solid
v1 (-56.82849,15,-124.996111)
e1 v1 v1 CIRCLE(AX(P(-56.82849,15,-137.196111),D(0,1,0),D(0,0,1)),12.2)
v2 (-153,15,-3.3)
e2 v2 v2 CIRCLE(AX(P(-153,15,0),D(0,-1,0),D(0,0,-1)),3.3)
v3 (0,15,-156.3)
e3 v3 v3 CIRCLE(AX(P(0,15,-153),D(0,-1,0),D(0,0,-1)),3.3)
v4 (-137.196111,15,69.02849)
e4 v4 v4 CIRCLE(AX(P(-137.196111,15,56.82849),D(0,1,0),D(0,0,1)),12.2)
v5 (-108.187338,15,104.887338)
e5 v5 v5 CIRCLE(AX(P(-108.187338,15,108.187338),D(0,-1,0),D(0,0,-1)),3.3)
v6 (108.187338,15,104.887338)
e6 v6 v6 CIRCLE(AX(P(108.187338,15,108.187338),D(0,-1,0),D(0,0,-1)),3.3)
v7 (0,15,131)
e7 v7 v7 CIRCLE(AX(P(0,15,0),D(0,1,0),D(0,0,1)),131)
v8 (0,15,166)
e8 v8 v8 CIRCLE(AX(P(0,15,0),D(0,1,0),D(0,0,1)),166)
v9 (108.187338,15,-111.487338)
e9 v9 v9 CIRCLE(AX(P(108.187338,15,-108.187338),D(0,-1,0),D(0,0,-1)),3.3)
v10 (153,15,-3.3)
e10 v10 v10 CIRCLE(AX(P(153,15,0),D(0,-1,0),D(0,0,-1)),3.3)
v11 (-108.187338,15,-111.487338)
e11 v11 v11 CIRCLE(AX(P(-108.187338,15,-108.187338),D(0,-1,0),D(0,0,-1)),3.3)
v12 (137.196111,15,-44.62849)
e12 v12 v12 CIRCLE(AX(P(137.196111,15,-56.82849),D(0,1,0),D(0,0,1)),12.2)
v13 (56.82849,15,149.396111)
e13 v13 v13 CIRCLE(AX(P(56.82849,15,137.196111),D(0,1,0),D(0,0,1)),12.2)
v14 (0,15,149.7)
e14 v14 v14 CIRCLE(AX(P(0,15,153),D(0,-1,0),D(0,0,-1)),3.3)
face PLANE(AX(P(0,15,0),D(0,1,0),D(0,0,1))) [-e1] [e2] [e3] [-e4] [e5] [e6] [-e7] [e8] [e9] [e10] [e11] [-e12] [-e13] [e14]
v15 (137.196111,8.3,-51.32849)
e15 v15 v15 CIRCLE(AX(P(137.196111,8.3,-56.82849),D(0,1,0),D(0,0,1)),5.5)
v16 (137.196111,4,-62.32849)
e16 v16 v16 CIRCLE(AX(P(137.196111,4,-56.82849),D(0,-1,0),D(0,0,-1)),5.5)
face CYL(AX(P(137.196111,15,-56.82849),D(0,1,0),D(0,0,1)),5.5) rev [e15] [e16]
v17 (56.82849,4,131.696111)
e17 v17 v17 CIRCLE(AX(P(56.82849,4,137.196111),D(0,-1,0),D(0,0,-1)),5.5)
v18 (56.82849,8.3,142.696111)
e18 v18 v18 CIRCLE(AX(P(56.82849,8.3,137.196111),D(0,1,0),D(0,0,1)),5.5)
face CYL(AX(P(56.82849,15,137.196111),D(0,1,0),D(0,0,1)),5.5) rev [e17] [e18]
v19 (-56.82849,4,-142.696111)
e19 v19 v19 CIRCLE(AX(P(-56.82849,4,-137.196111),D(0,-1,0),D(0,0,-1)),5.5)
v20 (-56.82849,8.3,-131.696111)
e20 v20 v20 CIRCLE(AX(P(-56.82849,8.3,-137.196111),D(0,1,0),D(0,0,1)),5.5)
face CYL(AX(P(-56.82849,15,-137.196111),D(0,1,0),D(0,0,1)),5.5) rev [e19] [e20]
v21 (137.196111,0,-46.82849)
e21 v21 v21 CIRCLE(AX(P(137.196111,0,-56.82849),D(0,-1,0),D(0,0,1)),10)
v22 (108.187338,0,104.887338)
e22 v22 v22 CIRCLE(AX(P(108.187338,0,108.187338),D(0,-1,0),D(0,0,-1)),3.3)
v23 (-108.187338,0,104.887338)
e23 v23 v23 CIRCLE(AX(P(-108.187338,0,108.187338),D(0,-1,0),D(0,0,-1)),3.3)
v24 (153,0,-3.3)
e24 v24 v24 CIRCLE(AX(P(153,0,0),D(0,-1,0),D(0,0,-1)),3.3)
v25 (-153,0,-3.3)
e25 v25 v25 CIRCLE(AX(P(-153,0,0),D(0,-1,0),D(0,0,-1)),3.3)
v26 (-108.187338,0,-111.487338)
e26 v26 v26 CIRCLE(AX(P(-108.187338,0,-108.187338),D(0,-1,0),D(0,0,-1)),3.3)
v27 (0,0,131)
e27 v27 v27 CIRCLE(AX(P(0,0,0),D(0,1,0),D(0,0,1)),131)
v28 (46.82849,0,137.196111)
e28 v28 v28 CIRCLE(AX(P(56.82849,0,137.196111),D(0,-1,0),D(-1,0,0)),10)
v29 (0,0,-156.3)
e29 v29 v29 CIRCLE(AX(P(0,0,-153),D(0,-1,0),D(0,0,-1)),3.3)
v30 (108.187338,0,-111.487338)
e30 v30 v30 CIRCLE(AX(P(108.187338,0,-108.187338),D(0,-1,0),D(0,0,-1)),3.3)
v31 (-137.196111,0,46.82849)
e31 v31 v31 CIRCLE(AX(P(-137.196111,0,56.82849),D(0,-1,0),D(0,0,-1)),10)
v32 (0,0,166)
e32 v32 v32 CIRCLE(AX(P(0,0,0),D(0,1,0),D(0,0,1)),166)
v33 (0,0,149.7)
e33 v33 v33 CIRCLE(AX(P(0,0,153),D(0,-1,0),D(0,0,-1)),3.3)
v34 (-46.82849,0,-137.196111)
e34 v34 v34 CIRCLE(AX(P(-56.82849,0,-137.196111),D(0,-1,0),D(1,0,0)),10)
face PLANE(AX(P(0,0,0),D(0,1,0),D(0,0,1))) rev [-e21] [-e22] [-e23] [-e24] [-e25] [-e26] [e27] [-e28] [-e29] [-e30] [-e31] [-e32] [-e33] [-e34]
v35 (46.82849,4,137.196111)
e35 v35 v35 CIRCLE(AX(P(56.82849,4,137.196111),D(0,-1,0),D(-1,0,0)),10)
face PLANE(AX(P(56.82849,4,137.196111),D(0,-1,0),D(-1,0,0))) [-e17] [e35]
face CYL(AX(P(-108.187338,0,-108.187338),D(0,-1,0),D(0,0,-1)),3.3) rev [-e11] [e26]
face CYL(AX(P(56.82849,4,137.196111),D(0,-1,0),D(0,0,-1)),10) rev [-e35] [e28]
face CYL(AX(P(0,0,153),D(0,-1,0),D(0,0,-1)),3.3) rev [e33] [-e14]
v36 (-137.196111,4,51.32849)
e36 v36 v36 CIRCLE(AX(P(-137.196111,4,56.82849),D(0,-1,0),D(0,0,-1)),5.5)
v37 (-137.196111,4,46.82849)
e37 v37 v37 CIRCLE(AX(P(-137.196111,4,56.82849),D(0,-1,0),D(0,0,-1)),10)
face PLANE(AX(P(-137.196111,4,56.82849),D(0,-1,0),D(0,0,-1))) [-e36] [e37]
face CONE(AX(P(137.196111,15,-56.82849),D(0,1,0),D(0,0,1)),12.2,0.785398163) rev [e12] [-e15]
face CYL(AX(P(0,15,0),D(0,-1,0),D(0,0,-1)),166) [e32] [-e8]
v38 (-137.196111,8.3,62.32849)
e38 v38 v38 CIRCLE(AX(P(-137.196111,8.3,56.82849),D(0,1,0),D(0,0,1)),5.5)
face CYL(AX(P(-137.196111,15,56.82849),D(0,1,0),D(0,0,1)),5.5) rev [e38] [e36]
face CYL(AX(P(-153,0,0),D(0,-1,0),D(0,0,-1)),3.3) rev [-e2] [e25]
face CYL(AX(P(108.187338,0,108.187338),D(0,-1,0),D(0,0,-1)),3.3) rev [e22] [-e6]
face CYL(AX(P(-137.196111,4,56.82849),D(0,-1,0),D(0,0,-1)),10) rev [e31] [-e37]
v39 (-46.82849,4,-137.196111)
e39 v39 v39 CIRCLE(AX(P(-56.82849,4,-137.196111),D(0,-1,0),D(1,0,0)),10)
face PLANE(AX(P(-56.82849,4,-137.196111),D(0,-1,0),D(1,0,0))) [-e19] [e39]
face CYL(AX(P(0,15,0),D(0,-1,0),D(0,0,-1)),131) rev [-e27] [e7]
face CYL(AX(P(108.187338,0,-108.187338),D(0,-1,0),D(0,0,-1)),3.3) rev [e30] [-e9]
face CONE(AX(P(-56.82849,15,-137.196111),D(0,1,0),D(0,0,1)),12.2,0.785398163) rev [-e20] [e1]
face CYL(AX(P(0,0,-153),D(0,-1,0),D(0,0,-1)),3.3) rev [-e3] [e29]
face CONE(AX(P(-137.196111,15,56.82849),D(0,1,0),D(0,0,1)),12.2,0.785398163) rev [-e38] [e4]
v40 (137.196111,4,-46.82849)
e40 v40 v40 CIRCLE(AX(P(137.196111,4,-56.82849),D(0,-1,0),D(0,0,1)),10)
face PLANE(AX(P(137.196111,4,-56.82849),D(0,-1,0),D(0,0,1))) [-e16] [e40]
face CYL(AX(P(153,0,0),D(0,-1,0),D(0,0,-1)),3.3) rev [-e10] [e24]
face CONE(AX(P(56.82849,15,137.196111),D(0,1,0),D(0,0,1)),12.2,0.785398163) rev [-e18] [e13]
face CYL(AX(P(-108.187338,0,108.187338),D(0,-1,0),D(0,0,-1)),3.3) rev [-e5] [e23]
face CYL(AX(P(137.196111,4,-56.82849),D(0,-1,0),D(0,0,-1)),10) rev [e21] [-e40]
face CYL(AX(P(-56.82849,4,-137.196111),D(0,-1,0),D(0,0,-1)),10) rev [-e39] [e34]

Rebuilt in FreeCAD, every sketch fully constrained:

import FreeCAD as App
import Part
import Sketcher

doc = App.newDocument("Part")
params = doc.addObject("Spreadsheet::Sheet", "Params")
for row, (alias, value) in enumerate([
    ("sketch1_diameter", "332 mm"),
    ("sketch1_diameter2", "262 mm"),
    ("pad1_length", "15 mm"),
    ("sketch2_diameter", "6.6 mm"),
    ("hole_diameter", "6.6 mm"),
    ("sketch3_diameter", "20 mm"),
    ("pocket1_length", "4 mm"),
    ("sketch4_diameter", "11 mm"),
    ("hole2_diameter", "11 mm"),
    ("hole2_csink_diameter", "24.4 mm"),
], start=1):
    params.set(f"A{row}", alias)
    params.set(f"B{row}", "=" + value)
    params.setAlias(f"B{row}", alias)

body = doc.addObject("PartDesign::Body", "Body")

sketch1 = body.newObject("Sketcher::SketchObject", "Sketch")
sketch1.AttachmentSupport = (doc.getObject("XZ_Plane"), [""])
sketch1.MapMode = "FlatFace"
sketch1.addGeometry(Part.Circle(App.Vector(0, 0, 0), App.Vector(0, 0, 1), 166), False)
sketch1.addGeometry(Part.Circle(App.Vector(0, 0, 0), App.Vector(0, 0, 1), 131), False)
sketch1.addConstraint(Sketcher.Constraint("Coincident", 0, 3, -1, 1))
sketch1.addConstraint(Sketcher.Constraint("Coincident", 1, 3, -1, 1))
sketch1.addConstraint(Sketcher.Constraint("Diameter", 0, 332.0))
sketch1.addConstraint(Sketcher.Constraint("Diameter", 1, 262.0))
sketch1.setExpression("Constraints[2]", "Params.sketch1_diameter")
sketch1.setExpression("Constraints[3]", "Params.sketch1_diameter2")
pad1 = body.newObject("PartDesign::Pad", "Pad")
pad1.Profile = sketch1
pad1.setExpression("Length", "Params.pad1_length")
pad1.Reversed = True

sketch2 = body.newObject("Sketcher::SketchObject", "Sketch001")
sketch2.AttachmentSupport = (doc.getObject("XZ_Plane"), [""])
sketch2.MapMode = "FlatFace"
sketch2.addGeometry(Part.Circle(App.Vector(0, -153, 0), App.Vector(0, 0, 1), 3.3), False)
sketch2.addConstraint(Sketcher.Constraint("PointOnObject", 0, 3, -2))
sketch2.addConstraint(Sketcher.Constraint("Diameter", 0, 6.6))
sketch2.addConstraint(Sketcher.Constraint("DistanceY", 0, 3, -1, 1, 153.0))
sketch2.setExpression("Constraints[1]", "Params.sketch2_diameter")
doc.recompute()
hole = body.newObject("PartDesign::Hole", "Hole")
hole.Profile = sketch2
hole.ThreadType = "None"
hole.setExpression("Diameter", "Params.hole_diameter")
hole.DepthType = "ThroughAll"
doc.recompute()

polarpattern = body.newObject("PartDesign::PolarPattern", "PolarPattern")
polarpattern.Originals = [hole]
polarpattern.Axis = (doc.getObject("Y_Axis"), [""])
polarpattern.Angle = 360
polarpattern.Occurrences = 8
body.Tip = polarpattern

sketch3 = body.newObject("Sketcher::SketchObject", "Sketch002")
sketch3.AttachmentSupport = (doc.getObject("XZ_Plane"), [""])
sketch3.MapMode = "FlatFace"
sketch3.addGeometry(Part.Circle(App.Vector(-137, 57, 0), App.Vector(0, 0, 1), 10), False)
sketch3.addConstraint(Sketcher.Constraint("Diameter", 0, 20.0))
sketch3.addConstraint(Sketcher.Constraint("DistanceX", 0, 3, -1, 1, 137.196111))
sketch3.addConstraint(Sketcher.Constraint("DistanceY", -1, 1, 0, 3, 56.82849))
sketch3.setExpression("Constraints[0]", "Params.sketch3_diameter")
pocket1 = body.newObject("PartDesign::Pocket", "Pocket")
pocket1.Profile = sketch3
pocket1.setExpression("Length", "Params.pocket1_length")

sketch4 = body.newObject("Sketcher::SketchObject", "Sketch003")
sketch4.AttachmentSupport = (doc.getObject("XZ_Plane"), [""])
sketch4.MapMode = "FlatFace"
sketch4.AttachmentOffset = App.Placement(App.Vector(0, 0, -15), App.Rotation())
sketch4.addGeometry(Part.Circle(App.Vector(-137, 57, 0), App.Vector(0, 0, 1), 6), False)
sketch4.addConstraint(Sketcher.Constraint("Diameter", 0, 11.0))
sketch4.addConstraint(Sketcher.Constraint("DistanceX", 0, 3, -1, 1, 137.196111))
sketch4.addConstraint(Sketcher.Constraint("DistanceY", -1, 1, 0, 3, 56.82849))
sketch4.setExpression("Constraints[0]", "Params.sketch4_diameter")
doc.recompute()
hole2 = body.newObject("PartDesign::Hole", "Hole001")
hole2.Profile = sketch4
hole2.ThreadType = "None"
hole2.setExpression("Diameter", "Params.hole2_diameter")
hole2.DepthType = "ThroughAll"
hole2.HoleCutType = "Countersink"
hole2.setExpression("HoleCutDiameter", "Params.hole2_csink_diameter")
hole2.HoleCutCountersinkAngle = 90
hole2.Reversed = True
doc.recompute()

polarpattern2 = body.newObject("PartDesign::PolarPattern", "PolarPattern001")
polarpattern2.Originals = [pocket1, hole2]
polarpattern2.Axis = (doc.getObject("Y_Axis"), [""])
polarpattern2.Angle = 360
polarpattern2.Occurrences = 4
body.Tip = polarpattern2

doc.recompute()
